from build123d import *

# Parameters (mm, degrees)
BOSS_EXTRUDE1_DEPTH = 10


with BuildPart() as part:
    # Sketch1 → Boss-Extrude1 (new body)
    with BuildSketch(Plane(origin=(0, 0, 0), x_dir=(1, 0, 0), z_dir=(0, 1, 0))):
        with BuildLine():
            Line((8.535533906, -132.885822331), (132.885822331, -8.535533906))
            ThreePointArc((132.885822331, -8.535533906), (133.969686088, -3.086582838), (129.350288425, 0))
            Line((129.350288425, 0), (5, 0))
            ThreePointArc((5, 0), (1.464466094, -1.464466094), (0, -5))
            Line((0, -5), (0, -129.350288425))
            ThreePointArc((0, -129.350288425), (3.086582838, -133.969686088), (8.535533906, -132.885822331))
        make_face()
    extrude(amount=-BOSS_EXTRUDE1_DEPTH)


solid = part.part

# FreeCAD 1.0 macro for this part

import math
import FreeCAD as App
import Part
import Sketcher

doc = App.newDocument("Part")
body = doc.addObject("PartDesign::Body", "Body")

sketch1 = doc.addObject("Sketcher::SketchObject", "Sketch")
body.addObject(sketch1)
sketch1.AttachmentSupport = (doc.XZ_Plane, [""])
sketch1.MapMode = "FlatFace"
sketch1.addGeometry(Part.LineSegment(App.Vector(9, 133, 0), App.Vector(133, 9, 0)), False)
sketch1.addGeometry(Part.ArcOfCircle(Part.Circle(App.Vector(129, 5, 0), App.Vector(0, 0, 1), 5), math.radians(-90), math.radians(45)), False)
sketch1.addGeometry(Part.LineSegment(App.Vector(129, 0, 0), App.Vector(5, 0, 0)), False)
sketch1.addGeometry(Part.ArcOfCircle(Part.Circle(App.Vector(5, 5, 0), App.Vector(0, 0, 1), 5), math.radians(180), math.radians(270)), False)
sketch1.addGeometry(Part.LineSegment(App.Vector(0, 5, 0), App.Vector(0, 129, 0)), False)
sketch1.addGeometry(Part.ArcOfCircle(Part.Circle(App.Vector(5, 129, 0), App.Vector(0, 0, 1), 5), math.radians(45), math.radians(180)), False)
sketch1.addConstraint(Sketcher.Constraint("Tangent", 0, 2, 1, 2))
sketch1.addConstraint(Sketcher.Constraint("Tangent", 1, 1, 2, 1))
sketch1.addConstraint(Sketcher.Constraint("Tangent", 2, 2, 3, 2))
sketch1.addConstraint(Sketcher.Constraint("Tangent", 3, 1, 4, 1))
sketch1.addConstraint(Sketcher.Constraint("Tangent", 4, 2, 5, 2))
sketch1.addConstraint(Sketcher.Constraint("Tangent", 5, 1, 0, 1))
sketch1.addConstraint(Sketcher.Constraint("Horizontal", 2))
sketch1.addConstraint(Sketcher.Constraint("Vertical", 4))
sketch1.addConstraint(Sketcher.Constraint("Equal", 1, 3))
sketch1.addConstraint(Sketcher.Constraint("Equal", 3, 5))
sketch1.addConstraint(Sketcher.Constraint("PointOnObject", 1, 1, -1))
sketch1.addConstraint(Sketcher.Constraint("PointOnObject", 3, 1, -2))
sketch1.addConstraint(Sketcher.Constraint("Equal", 2, 4))
sketch1.addConstraint(Sketcher.Constraint("Radius", 1, 5.0))
sketch1.addConstraint(Sketcher.Constraint("DistanceX", 2, 2, 2, 1, 124.350288))
pad1 = doc.addObject("PartDesign::Pad", "Pad")
body.addObject(pad1)
pad1.Profile = sketch1
pad1.Length = 10

doc.recompute()
